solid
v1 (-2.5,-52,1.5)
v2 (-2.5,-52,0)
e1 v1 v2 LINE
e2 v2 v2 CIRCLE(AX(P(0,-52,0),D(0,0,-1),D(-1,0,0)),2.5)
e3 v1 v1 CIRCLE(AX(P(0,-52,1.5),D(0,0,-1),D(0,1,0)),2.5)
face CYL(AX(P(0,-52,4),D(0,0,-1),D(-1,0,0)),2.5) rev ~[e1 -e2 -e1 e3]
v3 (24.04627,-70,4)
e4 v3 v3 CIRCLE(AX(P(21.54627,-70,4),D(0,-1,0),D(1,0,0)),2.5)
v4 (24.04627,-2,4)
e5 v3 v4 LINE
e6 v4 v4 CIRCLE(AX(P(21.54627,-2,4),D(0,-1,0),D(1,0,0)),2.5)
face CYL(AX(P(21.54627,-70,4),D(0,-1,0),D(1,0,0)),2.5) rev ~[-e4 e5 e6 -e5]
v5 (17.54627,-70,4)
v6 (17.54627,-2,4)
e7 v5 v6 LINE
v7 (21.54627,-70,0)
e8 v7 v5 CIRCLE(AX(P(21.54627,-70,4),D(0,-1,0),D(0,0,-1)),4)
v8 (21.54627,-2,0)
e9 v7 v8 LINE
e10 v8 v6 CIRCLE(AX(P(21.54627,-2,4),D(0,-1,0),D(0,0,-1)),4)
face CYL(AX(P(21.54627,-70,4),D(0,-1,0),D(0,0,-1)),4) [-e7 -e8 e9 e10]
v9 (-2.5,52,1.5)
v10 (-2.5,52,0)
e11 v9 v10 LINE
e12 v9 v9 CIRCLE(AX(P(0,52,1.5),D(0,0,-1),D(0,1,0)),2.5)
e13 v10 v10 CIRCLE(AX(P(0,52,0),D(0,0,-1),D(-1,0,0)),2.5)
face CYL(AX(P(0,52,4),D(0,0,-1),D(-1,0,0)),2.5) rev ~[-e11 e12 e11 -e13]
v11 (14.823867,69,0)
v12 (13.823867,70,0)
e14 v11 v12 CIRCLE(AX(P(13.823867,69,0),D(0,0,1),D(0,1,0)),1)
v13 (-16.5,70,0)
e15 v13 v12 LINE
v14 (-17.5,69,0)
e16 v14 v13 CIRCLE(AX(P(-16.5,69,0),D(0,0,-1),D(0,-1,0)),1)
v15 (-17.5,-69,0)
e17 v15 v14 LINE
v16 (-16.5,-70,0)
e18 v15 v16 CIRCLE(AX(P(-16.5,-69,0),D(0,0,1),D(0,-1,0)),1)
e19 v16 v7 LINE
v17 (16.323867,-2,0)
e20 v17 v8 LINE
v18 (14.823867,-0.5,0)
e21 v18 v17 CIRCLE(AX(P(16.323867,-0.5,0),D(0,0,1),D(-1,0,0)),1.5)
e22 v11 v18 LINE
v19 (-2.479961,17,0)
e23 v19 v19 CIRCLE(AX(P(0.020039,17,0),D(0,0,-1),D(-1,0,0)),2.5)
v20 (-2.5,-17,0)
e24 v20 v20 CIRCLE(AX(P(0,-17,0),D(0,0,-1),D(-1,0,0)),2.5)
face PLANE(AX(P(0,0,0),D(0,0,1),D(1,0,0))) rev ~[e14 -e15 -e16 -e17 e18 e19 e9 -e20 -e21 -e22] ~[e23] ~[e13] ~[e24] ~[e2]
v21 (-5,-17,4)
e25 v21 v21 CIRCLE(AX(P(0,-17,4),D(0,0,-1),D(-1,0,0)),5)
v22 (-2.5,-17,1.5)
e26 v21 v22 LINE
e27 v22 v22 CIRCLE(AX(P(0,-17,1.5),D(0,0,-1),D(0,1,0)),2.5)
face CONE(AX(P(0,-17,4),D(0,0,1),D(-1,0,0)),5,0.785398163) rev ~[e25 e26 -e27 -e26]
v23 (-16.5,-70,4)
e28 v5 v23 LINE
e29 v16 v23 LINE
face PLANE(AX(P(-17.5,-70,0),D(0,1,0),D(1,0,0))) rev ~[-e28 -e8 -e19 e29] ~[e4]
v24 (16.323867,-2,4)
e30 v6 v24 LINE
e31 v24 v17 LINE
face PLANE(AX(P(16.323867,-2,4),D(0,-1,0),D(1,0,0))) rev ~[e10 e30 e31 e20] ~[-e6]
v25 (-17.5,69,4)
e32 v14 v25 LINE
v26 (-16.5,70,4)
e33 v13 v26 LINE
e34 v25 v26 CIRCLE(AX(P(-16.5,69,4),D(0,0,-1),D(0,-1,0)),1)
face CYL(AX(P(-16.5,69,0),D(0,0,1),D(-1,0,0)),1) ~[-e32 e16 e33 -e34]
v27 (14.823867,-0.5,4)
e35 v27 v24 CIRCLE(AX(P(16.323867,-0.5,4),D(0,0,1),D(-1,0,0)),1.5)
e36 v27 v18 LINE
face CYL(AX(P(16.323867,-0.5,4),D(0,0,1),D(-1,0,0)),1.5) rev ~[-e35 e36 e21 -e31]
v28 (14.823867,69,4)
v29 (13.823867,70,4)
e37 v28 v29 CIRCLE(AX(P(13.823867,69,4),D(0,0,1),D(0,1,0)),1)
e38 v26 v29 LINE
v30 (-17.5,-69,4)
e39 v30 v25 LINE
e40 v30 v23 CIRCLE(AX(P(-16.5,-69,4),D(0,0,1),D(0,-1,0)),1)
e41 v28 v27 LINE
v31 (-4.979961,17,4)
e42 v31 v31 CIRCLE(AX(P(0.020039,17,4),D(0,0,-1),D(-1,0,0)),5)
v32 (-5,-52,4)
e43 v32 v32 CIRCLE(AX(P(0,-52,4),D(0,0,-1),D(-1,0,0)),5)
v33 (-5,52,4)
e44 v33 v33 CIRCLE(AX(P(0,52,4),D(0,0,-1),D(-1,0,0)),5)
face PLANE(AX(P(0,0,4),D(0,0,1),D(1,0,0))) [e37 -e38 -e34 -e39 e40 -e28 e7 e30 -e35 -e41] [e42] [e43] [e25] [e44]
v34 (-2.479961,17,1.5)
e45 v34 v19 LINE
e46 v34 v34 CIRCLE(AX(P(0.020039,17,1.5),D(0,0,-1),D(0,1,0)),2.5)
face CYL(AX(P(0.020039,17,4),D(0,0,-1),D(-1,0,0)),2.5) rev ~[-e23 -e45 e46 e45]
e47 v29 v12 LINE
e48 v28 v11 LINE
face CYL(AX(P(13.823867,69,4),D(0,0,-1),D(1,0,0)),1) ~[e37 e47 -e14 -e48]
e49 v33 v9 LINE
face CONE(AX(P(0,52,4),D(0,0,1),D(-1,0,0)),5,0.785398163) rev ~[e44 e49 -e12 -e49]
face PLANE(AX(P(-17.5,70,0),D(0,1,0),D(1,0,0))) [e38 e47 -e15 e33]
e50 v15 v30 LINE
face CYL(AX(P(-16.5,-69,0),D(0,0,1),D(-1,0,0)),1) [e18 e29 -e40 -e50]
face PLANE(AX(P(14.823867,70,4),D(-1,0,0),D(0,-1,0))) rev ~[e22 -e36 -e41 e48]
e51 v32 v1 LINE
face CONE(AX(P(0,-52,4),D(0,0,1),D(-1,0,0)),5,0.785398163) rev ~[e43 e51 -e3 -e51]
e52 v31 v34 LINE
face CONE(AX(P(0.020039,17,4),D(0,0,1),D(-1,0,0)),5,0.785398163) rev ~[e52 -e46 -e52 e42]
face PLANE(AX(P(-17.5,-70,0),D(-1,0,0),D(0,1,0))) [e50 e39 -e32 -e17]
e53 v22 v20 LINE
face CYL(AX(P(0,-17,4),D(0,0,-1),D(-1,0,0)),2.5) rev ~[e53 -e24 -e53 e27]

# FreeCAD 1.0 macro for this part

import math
import FreeCAD as App
import Part
import Sketcher

V = App.Vector


def edges_at(feature, points):
    """Names of the edges that pass closest to the given points."""
    edges = feature.Shape.Edges
    near = lambda p: min(range(len(edges)), key=lambda i: edges[i].distToShape(Part.Vertex(*p))[0])
    return sorted({f"Edge{near(p) + 1}" for p in points})


def add_polygon(sketch, points):
    """Adds a closed chain of lines whose ends are joined by coincident constraints."""
    first, n = sketch.GeometryCount, len(points)
    for a, b in zip(points, points[1:] + points[:1]):
        sketch.addGeometry(Part.LineSegment(App.Vector(*a, 0), App.Vector(*b, 0)), False)
    for i in range(n):
        sketch.addConstraint(Sketcher.Constraint("Coincident", first + i, 2, first + (i + 1) % n, 1))

doc = App.newDocument("Part")
body = doc.addObject("PartDesign::Body", "Body")

sketch1 = doc.addObject("Sketcher::SketchObject", "Sketch")
body.addObject(sketch1)
sketch1.AttachmentSupport = (doc.XY_Plane, [""])
sketch1.MapMode = "FlatFace"
add_polygon(sketch1, [(-18, 70), (-18, -70), (18, -70), (18, 70)])
sketch1.addConstraint([
    Sketcher.Constraint("Vertical", 0),
    Sketcher.Constraint("Horizontal", 1),
    Sketcher.Constraint("Vertical", 2),
    Sketcher.Constraint("Horizontal", 3),
    Sketcher.Constraint("Symmetric", 0, 2, 2, 2, -1, 1),
    Sketcher.Constraint("DistanceX", 1, 1, 1, 2, 35.0),
    Sketcher.Constraint("DistanceY", 0, 2, 0, 1, 140.0),
])
pad1 = doc.addObject("PartDesign::Pad", "Pad")
body.addObject(pad1)
pad1.Profile = sketch1
pad1.Length = 4
body2 = doc.addObject("PartDesign::Body", "Body001")

sketch2 = doc.addObject("Sketcher::SketchObject", "Sketch001")
body2.addObject(sketch2)
sketch2.AttachmentSupport = (doc.getObject("XZ_Plane001"), [""])
sketch2.MapMode = "FlatFace"
sketch2.AttachmentOffset = App.Placement(V(0, 0, 70), App.Rotation())
sketch2.addGeometry([
    Part.LineSegment(V(17.5, 4, 0), V(17.5, 0, 0)),
    Part.LineSegment(V(17.5, 0, 0), V(21.546, 0, 0)),
    Part.ArcOfCircle(Part.Circle(V(21.546, 4, 0), V(0, 0, 1), 4), math.radians(-90), math.radians(180)),
    Part.LineSegment(V(17.546, 4, 0), V(17.5, 4, 0)),
    Part.Circle(V(21.546, 4, 0), V(0, 0, 1), 2.5),
], False)
sketch2.addConstraint([
    Sketcher.Constraint("Coincident", 0, 2, 1, 1),
    Sketcher.Constraint("Tangent", 1, 2, 2, 1),
    Sketcher.Constraint("Coincident", 2, 2, 3, 1),
    Sketcher.Constraint("Coincident", 3, 2, 0, 1),
    Sketcher.Constraint("Vertical", 0),
    Sketcher.Constraint("Horizontal", 1),
    Sketcher.Constraint("Horizontal", 3),
    Sketcher.Constraint("Coincident", 4, 3, 2, 3),
    Sketcher.Constraint("PointOnObject", 0, 2, -1),
    Sketcher.Constraint("Horizontal", 4, 3, 2, 2),
    Sketcher.Constraint("Diameter", 4, 5.0),
    Sketcher.Constraint("Radius", 2, 4.0),
    Sketcher.Constraint("DistanceX", -1, 1, 0, 2, 17.5),
    Sketcher.Constraint("DistanceX", 1, 1, 1, 2, 4.04627),
])
pad2 = doc.addObject("PartDesign::Pad", "Pad001")
body2.addObject(pad2)
pad2.Profile = sketch2
pad2.Length = 68
pad2.Reversed = True
doc.recompute()

boolean = doc.addObject("PartDesign::Boolean", "Boolean")
body2.addObject(boolean)
boolean.Type = "Fuse"
boolean.addObjects([body])

sketch3 = doc.addObject("Sketcher::SketchObject", "Sketch002")
body2.addObject(sketch3)
sketch3.AttachmentSupport = (doc.getObject("XY_Plane001"), [""])
sketch3.MapMode = "FlatFace"
sketch3.AttachmentOffset = App.Placement(V(0, 0, 4), App.Rotation())
sketch3.addGeometry([
    Part.Circle(V(0, -52, 0), V(0, 0, 1), 2.5),
    Part.Circle(V(0, -17, 0), V(0, 0, 1), 2.5),
    Part.Circle(V(0, 17, 0), V(0, 0, 1), 2.5),
    Part.Circle(V(0, 52, 0), V(0, 0, 1), 2.5),
], False)
sketch3.addConstraint([
    Sketcher.Constraint("Equal", 0, 1),
    Sketcher.Constraint("Equal", 1, 2),
    Sketcher.Constraint("Equal", 2, 3),
    Sketcher.Constraint("Symmetric", 0, 3, 3, 3, -1, 1),
    Sketcher.Constraint("PointOnObject", 0, 3, -2),
    Sketcher.Constraint("PointOnObject", 1, 3, -2),
    Sketcher.Constraint("Diameter", 0, 5.0),
    Sketcher.Constraint("DistanceY", 0, 3, -1, 1, 52.0),
    Sketcher.Constraint("DistanceY", 1, 3, -1, 1, 17.0),
    Sketcher.Constraint("DistanceY", -1, 1, 2, 3, 17.0),
    Sketcher.Constraint("DistanceX", -1, 1, 2, 3, 0.020039),
])
doc.recompute()
hole = doc.addObject("PartDesign::Hole", "Hole")
body2.addObject(hole)
hole.Profile = sketch3
hole.ThreadType = "None"
hole.Diameter = 5
hole.DepthType = "ThroughAll"
hole.HoleCutType = "Countersink"
hole.HoleCutDiameter = 10
hole.HoleCutCountersinkAngle = 90

sketch4 = doc.addObject("Sketcher::SketchObject", "Sketch003")
body2.addObject(sketch4)
sketch4.AttachmentSupport = (doc.getObject("XY_Plane001"), [""])
sketch4.MapMode = "FlatFace"
sketch4.AttachmentOffset = App.Placement(V(0, 0, 4), App.Rotation())
sketch4.addGeometry([
    Part.LineSegment(V(17.5, 70, 0), V(14.8, 70, 0)),
    Part.LineSegment(V(14.8, 70, 0), V(14.8, -0.5, 0)),
    Part.ArcOfCircle(Part.Circle(V(16.3, -0.5, 0), V(0, 0, 1), 1.5), math.radians(180), math.radians(270)),
    Part.LineSegment(V(16.3, -2, 0), V(17.5, -2, 0)),
    Part.LineSegment(V(17.5, -2, 0), V(17.5, 70, 0)),
], False)
sketch4.addConstraint([
    Sketcher.Constraint("Coincident", 0, 2, 1, 1),
    Sketcher.Constraint("Tangent", 1, 2, 2, 1),
    Sketcher.Constraint("Tangent", 2, 2, 3, 1),
    Sketcher.Constraint("Coincident", 3, 2, 4, 1),
    Sketcher.Constraint("Coincident", 4, 2, 0, 1),
    Sketcher.Constraint("Horizontal", 0),
    Sketcher.Constraint("Vertical", 1),
    Sketcher.Constraint("Horizontal", 3),
    Sketcher.Constraint("Vertical", 4),
    Sketcher.Constraint("Radius", 2, 1.5),
    Sketcher.Constraint("DistanceY", 4, 1, 4, 2, 72.0),
    Sketcher.Constraint("DistanceY", -1, 1, 0, 2, 70.0),
    Sketcher.Constraint("DistanceX", -1, 1, 3, 2, 17.5),
    Sketcher.Constraint("DistanceX", 0, 2, 0, 1, 2.676133),
])
pocket1 = doc.addObject("PartDesign::Pocket", "Pocket")
body2.addObject(pocket1)
pocket1.Profile = sketch4
pocket1.Type = "ThroughAll"
doc.recompute()

fillet = doc.addObject("PartDesign::Fillet", "Fillet")
body2.addObject(fillet)
fillet.Base = (pocket1, edges_at(pocket1, [(-17.5, -70, 2), (-17.5, 70, 2), (14.824, 70, 2)]))
fillet.Radius = 1

doc.recompute()
